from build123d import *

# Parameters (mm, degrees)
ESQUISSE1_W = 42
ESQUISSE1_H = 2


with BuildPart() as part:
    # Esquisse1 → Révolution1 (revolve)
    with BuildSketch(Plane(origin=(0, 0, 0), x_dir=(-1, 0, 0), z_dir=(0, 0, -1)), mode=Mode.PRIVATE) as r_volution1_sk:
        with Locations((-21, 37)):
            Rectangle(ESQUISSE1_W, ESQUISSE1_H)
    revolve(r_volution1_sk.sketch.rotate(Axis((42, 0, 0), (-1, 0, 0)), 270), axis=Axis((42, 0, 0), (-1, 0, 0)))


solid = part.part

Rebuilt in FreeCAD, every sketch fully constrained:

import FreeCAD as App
import Part
import Sketcher


def add_polygon(sketch, points):
    """Adds a closed chain of lines whose ends are joined by coincident constraints."""
    first, n = sketch.GeometryCount, len(points)
    for a, b in zip(points, points[1:] + points[:1]):
        sketch.addGeometry(Part.LineSegment(App.Vector(*a, 0), App.Vector(*b, 0)), False)
    for i in range(n):
        sketch.addConstraint(Sketcher.Constraint("Coincident", first + i, 2, first + (i + 1) % n, 1))

doc = App.newDocument("Part")
params = doc.addObject("Spreadsheet::Sheet", "Params")
for row, (alias, value) in enumerate([
    ("sketch1_width", "42 mm"),
    ("sketch1_height", "2 mm"),
    ("revolution_angle", "360 deg"),
], start=1):
    params.set(f"A{row}", alias)
    params.set(f"B{row}", "=" + value)
    params.setAlias(f"B{row}", alias)

body = doc.addObject("PartDesign::Body", "Body")

# Sketch on XY plane
sketch1 = doc.addObject("Sketcher::SketchObject", "Sketch")
body.addObject(sketch1)
sketch1.AttachmentSupport = (doc.XY_Plane, [""])
sketch1.MapMode = "FlatFace"
add_polygon(sketch1, [(42, 38), (42, 36), (0, 36), (0, 38)])  # lines 0-3
sketch1.addConstraint([
    Sketcher.Constraint("Vertical", 0),
    Sketcher.Constraint("Horizontal", 1),
    Sketcher.Constraint("Vertical", 2),
    Sketcher.Constraint("Horizontal", 3),
    Sketcher.Constraint("PointOnObject", 1, 2, -2),
    Sketcher.Constraint("DistanceX", 1, 2, 1, 1, 42.0),
    Sketcher.Constraint("DistanceY", 0, 2, 0, 1, 2.0),
    Sketcher.Constraint("DistanceY", -1, 1, 0, 2, 36.0),
])
sketch1.setExpression("Constraints[9]", "Params.sketch1_width")
sketch1.setExpression("Constraints[10]", "Params.sketch1_height")
revolution = doc.addObject("PartDesign::Revolution", "Revolution")
body.addObject(revolution)
revolution.Profile = sketch1
revolution.ReferenceAxis = (sketch1, ["H_Axis"])
revolution.setExpression("Angle", "Params.revolution_angle")

doc.recompute()
